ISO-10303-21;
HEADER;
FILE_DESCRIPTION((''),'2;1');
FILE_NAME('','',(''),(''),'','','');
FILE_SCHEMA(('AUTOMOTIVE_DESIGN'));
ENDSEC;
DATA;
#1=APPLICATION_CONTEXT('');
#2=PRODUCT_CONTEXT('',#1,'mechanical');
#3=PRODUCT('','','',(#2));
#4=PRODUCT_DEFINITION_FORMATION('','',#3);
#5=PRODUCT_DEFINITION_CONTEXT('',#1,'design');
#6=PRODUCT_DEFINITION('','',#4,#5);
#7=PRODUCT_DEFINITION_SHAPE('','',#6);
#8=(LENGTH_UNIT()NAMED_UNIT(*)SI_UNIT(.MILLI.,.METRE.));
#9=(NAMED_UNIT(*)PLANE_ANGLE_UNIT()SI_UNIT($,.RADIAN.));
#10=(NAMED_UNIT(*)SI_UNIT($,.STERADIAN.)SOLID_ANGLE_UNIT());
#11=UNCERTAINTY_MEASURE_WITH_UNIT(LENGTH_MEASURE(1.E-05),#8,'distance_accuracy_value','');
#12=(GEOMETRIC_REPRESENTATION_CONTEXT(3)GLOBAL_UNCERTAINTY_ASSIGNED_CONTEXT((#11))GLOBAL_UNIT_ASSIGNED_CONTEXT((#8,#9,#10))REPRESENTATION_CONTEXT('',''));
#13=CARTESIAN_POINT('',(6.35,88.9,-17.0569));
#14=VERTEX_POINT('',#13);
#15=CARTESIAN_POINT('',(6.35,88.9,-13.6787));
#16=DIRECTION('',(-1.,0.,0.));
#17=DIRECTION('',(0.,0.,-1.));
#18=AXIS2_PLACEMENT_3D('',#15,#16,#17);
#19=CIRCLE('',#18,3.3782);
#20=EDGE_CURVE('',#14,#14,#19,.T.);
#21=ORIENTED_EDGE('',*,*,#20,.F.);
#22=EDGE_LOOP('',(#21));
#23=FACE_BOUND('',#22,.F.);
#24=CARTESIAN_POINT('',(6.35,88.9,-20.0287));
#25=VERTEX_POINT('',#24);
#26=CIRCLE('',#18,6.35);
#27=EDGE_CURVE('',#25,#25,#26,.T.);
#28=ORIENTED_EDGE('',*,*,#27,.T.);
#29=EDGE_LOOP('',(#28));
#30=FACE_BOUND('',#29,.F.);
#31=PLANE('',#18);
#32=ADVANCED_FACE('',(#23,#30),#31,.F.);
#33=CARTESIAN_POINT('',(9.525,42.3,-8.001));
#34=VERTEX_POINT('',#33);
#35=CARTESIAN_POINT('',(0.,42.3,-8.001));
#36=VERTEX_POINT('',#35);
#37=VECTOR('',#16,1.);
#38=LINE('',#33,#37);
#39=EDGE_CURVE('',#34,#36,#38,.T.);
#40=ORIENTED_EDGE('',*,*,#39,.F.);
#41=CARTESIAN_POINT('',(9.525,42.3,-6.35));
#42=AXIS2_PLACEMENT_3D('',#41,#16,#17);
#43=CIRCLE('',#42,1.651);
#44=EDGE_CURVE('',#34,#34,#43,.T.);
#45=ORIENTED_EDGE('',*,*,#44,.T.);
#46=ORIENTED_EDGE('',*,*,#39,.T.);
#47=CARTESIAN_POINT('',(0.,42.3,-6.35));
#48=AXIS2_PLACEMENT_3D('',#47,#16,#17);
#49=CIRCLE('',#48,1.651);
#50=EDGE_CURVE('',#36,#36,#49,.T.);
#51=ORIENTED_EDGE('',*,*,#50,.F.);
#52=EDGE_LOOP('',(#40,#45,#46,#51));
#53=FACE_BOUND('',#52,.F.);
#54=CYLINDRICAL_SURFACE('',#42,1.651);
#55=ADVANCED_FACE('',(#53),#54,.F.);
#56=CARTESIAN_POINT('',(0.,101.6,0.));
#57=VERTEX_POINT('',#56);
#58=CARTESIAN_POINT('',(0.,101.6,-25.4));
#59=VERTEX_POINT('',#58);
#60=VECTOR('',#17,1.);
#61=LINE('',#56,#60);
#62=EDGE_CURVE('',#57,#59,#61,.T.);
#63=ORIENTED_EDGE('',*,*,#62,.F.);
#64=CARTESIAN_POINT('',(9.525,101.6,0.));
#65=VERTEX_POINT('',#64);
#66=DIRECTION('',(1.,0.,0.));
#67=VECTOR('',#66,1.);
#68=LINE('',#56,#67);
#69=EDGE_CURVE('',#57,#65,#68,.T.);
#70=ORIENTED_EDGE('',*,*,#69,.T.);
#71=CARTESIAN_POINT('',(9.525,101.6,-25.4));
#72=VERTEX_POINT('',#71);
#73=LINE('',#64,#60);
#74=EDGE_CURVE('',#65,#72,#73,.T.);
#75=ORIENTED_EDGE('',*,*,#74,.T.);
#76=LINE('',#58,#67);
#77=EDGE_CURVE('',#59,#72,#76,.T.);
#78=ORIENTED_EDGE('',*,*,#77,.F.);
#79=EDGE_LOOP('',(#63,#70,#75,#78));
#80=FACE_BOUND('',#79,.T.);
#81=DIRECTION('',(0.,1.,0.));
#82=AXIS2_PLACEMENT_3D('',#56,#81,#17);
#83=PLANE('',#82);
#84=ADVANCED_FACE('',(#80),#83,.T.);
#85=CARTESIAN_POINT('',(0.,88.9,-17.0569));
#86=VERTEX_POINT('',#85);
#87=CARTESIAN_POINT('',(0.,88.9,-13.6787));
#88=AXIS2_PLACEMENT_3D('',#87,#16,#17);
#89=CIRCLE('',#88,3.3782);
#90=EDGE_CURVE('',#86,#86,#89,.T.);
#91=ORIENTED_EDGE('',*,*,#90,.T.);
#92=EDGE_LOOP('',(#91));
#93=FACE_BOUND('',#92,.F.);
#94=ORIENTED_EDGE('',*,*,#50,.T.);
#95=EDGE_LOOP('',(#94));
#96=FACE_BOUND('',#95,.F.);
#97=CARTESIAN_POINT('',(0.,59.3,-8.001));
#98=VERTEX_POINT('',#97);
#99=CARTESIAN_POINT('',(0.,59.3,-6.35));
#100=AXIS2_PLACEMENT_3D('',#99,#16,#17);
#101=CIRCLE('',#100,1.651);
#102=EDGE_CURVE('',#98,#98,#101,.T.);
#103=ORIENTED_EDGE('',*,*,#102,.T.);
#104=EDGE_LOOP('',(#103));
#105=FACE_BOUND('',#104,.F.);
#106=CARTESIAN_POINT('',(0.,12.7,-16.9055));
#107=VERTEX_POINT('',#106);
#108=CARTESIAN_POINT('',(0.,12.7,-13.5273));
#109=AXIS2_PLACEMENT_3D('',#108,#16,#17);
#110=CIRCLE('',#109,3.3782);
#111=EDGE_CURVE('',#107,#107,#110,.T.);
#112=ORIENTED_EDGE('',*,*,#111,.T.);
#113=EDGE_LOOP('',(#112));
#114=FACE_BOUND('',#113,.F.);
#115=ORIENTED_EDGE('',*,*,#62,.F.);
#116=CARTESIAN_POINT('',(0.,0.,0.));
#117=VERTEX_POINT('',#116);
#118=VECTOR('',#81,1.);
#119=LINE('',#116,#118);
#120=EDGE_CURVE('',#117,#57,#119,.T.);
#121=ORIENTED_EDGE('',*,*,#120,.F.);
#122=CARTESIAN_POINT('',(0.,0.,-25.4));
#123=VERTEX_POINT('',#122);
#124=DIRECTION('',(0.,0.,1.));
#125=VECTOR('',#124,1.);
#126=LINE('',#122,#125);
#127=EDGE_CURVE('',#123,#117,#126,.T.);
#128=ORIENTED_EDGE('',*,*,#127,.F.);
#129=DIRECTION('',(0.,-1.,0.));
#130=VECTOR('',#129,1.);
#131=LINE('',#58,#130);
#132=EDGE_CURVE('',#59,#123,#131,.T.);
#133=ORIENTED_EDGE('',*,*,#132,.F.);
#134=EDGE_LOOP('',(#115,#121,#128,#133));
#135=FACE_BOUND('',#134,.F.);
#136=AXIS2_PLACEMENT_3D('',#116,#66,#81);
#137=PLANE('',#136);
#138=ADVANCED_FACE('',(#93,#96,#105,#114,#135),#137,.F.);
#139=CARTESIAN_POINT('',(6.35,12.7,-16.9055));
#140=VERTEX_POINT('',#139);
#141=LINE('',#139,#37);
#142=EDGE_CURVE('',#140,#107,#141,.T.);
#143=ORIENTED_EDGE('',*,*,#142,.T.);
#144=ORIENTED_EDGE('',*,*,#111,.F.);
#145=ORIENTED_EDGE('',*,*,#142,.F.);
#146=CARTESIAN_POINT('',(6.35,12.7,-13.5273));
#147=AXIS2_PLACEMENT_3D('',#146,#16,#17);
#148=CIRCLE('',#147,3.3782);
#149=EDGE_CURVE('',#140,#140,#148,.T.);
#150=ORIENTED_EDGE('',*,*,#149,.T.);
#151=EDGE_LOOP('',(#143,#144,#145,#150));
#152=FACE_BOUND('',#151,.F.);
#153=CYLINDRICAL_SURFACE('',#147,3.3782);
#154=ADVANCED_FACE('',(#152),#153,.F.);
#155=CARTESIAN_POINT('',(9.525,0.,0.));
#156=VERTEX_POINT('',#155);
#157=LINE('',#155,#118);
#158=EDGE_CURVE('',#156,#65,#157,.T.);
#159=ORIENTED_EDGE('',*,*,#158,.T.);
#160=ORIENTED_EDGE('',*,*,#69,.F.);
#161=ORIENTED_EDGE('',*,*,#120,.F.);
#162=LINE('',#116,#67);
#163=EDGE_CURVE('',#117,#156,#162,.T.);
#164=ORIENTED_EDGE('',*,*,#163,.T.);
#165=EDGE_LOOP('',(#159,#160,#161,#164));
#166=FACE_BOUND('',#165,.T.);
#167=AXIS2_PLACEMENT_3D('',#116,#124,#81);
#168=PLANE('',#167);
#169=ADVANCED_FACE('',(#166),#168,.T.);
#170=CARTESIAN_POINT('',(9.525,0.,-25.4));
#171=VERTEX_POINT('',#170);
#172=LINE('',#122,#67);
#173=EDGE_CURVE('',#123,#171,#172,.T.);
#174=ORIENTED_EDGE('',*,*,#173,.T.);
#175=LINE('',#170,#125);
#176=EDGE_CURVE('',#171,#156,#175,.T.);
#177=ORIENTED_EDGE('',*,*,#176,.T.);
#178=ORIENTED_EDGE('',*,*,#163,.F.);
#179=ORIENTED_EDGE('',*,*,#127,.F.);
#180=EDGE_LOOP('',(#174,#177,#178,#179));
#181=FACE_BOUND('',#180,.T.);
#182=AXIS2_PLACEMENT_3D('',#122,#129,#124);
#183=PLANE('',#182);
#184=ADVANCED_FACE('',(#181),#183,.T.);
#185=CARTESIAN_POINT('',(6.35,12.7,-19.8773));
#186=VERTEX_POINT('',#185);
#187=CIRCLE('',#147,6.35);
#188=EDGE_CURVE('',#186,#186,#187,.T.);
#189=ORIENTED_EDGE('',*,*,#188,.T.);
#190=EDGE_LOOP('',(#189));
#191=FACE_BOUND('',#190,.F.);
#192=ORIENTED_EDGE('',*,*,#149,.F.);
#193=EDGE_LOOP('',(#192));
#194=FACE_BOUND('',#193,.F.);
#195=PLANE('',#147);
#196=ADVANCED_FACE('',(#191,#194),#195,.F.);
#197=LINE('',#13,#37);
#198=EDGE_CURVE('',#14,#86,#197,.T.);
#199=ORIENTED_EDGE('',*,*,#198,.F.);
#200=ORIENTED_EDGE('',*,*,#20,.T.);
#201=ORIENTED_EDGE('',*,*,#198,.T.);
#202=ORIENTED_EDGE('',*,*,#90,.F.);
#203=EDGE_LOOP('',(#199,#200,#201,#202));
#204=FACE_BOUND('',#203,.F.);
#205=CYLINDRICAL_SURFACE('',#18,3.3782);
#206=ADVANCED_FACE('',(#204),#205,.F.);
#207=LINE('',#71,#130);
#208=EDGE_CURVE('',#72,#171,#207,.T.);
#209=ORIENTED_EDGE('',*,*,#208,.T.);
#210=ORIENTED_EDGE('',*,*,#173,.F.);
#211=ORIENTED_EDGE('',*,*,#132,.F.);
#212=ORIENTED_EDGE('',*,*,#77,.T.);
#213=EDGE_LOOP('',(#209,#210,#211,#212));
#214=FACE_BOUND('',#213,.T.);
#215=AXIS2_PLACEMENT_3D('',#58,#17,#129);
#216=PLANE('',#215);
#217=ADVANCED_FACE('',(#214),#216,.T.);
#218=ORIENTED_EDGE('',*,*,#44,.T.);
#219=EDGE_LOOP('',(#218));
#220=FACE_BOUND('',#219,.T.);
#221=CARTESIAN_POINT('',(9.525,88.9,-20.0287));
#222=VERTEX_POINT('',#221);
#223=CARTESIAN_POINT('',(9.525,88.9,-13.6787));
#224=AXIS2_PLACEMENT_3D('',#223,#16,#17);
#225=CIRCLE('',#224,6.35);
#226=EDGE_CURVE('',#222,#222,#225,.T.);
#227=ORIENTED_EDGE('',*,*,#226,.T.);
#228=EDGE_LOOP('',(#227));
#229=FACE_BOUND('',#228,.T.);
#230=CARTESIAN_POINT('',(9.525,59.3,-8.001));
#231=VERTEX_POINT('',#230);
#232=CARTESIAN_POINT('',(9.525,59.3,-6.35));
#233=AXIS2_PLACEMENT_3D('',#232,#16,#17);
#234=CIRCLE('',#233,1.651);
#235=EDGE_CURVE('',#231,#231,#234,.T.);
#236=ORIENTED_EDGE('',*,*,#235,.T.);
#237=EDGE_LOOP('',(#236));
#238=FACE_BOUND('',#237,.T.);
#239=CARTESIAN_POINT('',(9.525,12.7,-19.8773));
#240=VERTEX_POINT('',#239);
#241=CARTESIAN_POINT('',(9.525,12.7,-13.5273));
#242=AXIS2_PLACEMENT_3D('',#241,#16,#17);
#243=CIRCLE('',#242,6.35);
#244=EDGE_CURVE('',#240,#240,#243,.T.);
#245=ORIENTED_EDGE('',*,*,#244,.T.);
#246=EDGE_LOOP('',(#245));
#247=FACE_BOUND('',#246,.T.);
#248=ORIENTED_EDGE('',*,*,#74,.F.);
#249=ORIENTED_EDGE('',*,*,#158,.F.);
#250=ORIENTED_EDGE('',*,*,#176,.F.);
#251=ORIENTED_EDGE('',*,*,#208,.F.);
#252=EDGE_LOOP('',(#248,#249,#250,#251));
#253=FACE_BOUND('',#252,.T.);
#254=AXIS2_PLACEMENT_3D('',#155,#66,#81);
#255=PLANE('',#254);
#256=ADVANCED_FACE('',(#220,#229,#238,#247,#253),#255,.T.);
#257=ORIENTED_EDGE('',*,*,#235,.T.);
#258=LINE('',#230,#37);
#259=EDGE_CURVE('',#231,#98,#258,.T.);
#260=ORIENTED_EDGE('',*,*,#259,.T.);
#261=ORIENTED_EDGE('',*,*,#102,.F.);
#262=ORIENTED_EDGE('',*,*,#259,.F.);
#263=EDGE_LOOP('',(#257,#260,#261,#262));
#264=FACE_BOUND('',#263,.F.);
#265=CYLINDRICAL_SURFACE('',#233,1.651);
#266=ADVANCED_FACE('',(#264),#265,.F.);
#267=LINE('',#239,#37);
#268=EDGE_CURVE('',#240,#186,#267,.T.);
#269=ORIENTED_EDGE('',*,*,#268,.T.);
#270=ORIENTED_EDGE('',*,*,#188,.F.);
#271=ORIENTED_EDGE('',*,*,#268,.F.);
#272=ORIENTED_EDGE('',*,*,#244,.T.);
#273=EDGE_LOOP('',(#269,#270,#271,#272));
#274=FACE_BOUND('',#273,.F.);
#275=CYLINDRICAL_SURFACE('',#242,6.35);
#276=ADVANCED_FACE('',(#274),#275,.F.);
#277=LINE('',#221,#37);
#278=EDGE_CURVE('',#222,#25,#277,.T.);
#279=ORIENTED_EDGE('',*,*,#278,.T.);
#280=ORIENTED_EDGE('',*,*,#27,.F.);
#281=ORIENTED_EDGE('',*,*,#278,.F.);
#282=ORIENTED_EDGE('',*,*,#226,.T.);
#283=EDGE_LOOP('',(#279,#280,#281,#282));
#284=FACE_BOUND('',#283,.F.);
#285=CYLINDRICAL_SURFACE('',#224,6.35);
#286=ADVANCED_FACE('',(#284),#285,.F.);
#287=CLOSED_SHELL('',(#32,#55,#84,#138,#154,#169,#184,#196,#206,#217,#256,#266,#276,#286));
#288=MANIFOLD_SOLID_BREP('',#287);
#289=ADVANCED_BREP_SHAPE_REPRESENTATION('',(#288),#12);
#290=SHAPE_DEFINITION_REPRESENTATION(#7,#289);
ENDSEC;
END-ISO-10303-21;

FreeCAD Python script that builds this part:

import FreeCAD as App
import Part
import Sketcher

V = App.Vector
Q = App.Units.Quantity

doc = App.newDocument("Part")
body = doc.addObject("PartDesign::Body", "Body")

sketch1 = doc.addObject("Sketcher::SketchObject", "Sketch")
body.addObject(sketch1)
sketch1.AttachmentSupport = (doc.YZ_Plane, [""])
sketch1.MapMode = "FlatFace"
sketch1.addGeometry(Part.LineSegment(V(102, 0, 0), V(0, 0, 0)), False)
sketch1.addGeometry(Part.LineSegment(V(0, 0, 0), V(0, -25, 0)), False)
sketch1.addGeometry(Part.LineSegment(V(0, -25, 0), V(102, -25, 0)), False)
sketch1.addGeometry(Part.LineSegment(V(102, -25, 0), V(102, 0, 0)), False)
sketch1.addConstraint(Sketcher.Constraint("Coincident", 0, 2, 1, 1))
sketch1.addConstraint(Sketcher.Constraint("Coincident", 1, 2, 2, 1))
sketch1.addConstraint(Sketcher.Constraint("Coincident", 2, 2, 3, 1))
sketch1.addConstraint(Sketcher.Constraint("Coincident", 3, 2, 0, 1))
sketch1.addConstraint(Sketcher.Constraint("Horizontal", 0))
sketch1.addConstraint(Sketcher.Constraint("Vertical", 1))
sketch1.addConstraint(Sketcher.Constraint("Horizontal", 2))
sketch1.addConstraint(Sketcher.Constraint("Vertical", 3))
sketch1.addConstraint(Sketcher.Constraint("Coincident", 0, 2, -1, 1))
sketch1.addConstraint(Sketcher.Constraint("DistanceX", 0, 2, 0, 1, Q("4 in")))
sketch1.addConstraint(Sketcher.Constraint("DistanceY", 1, 2, 1, 1, Q("1 in")))
pad1 = doc.addObject("PartDesign::Pad", "Pad")
body.addObject(pad1)
pad1.Profile = sketch1
pad1.Length = Q("0.375 in")

sketch2 = doc.addObject("Sketcher::SketchObject", "Sketch001")
body.addObject(sketch2)
sketch2.AttachmentSupport = (doc.YZ_Plane, [""])
sketch2.MapMode = "FlatFace"
sketch2.AttachmentOffset = App.Placement(V(0, 0, 0.375 * 25.4), App.Rotation())
sketch2.addGeometry(Part.Circle(V(88.9, -13.7, 0), V(0, 0, 1), 3.4), False)
sketch2.addConstraint(Sketcher.Constraint("Diameter", 0, Q("0.266 in")))
sketch2.addConstraint(Sketcher.Constraint("DistanceX", -1, 1, 0, 3, Q("3.5 in")))
sketch2.addConstraint(Sketcher.Constraint("DistanceY", 0, 3, -1, 1, 13.6787))
doc.recompute()
hole = doc.addObject("PartDesign::Hole", "Hole")
body.addObject(hole)
hole.Profile = sketch2
hole.ThreadType = "None"
hole.Diameter = Q("0.266 in")
hole.DepthType = "ThroughAll"
hole.HoleCutType = "Counterbore"
hole.HoleCutDiameter = Q("0.5 in")
hole.HoleCutDepth = Q("0.125 in")

sketch3 = doc.addObject("Sketcher::SketchObject", "Sketch002")
body.addObject(sketch3)
sketch3.AttachmentSupport = (doc.YZ_Plane, [""])
sketch3.MapMode = "FlatFace"
sketch3.AttachmentOffset = App.Placement(V(0, 0, 0.375 * 25.4), App.Rotation())
sketch3.addGeometry(Part.Circle(V(12.7, -13.5, 0), V(0, 0, 1), 3.4), False)
sketch3.addConstraint(Sketcher.Constraint("Diameter", 0, Q("0.266 in")))
sketch3.addConstraint(Sketcher.Constraint("DistanceX", -1, 1, 0, 3, Q("0.5 in")))
sketch3.addConstraint(Sketcher.Constraint("DistanceY", 0, 3, -1, 1, 13.5273))
doc.recompute()
hole2 = doc.addObject("PartDesign::Hole", "Hole001")
body.addObject(hole2)
hole2.Profile = sketch3
hole2.ThreadType = "None"
hole2.Diameter = Q("0.266 in")
hole2.DepthType = "ThroughAll"
hole2.HoleCutType = "Counterbore"
hole2.HoleCutDiameter = Q("0.5 in")
hole2.HoleCutDepth = Q("0.125 in")

sketch4 = doc.addObject("Sketcher::SketchObject", "Sketch003")
body.addObject(sketch4)
sketch4.AttachmentSupport = (doc.YZ_Plane, [""])
sketch4.MapMode = "FlatFace"
sketch4.AttachmentOffset = App.Placement(V(0, 0, 0.375 * 25.4), App.Rotation())
sketch4.addGeometry(Part.Circle(V(59.3, -6.3, 0), V(0, 0, 1), 1.7), False)
sketch4.addConstraint(Sketcher.Constraint("Diameter", 0, Q("0.13 in")))
sketch4.addConstraint(Sketcher.Constraint("DistanceY", 0, 3, -1, 1, Q("0.25 in")))
sketch4.addConstraint(Sketcher.Constraint("DistanceX", -1, 1, 0, 3, 59.3))
doc.recompute()
hole3 = doc.addObject("PartDesign::Hole", "Hole002")
body.addObject(hole3)
hole3.Profile = sketch4
hole3.ThreadType = "None"
hole3.Diameter = Q("0.13 in")
hole3.DepthType = "ThroughAll"

sketch5 = doc.addObject("Sketcher::SketchObject", "Sketch004")
body.addObject(sketch5)
sketch5.AttachmentSupport = (doc.YZ_Plane, [""])
sketch5.MapMode = "FlatFace"
sketch5.AttachmentOffset = App.Placement(V(0, 0, 0.375 * 25.4), App.Rotation())
sketch5.addGeometry(Part.Circle(V(42.3, -6.3, 0), V(0, 0, 1), 1.7), False)
sketch5.addConstraint(Sketcher.Constraint("Diameter", 0, Q("0.13 in")))
sketch5.addConstraint(Sketcher.Constraint("DistanceY", 0, 3, -1, 1, Q("0.25 in")))
sketch5.addConstraint(Sketcher.Constraint("DistanceX", -1, 1, 0, 3, 42.3))
doc.recompute()
hole4 = doc.addObject("PartDesign::Hole", "Hole003")
body.addObject(hole4)
hole4.Profile = sketch5
hole4.ThreadType = "None"
hole4.Diameter = Q("0.13 in")
hole4.DepthType = "ThroughAll"

doc.recompute()
